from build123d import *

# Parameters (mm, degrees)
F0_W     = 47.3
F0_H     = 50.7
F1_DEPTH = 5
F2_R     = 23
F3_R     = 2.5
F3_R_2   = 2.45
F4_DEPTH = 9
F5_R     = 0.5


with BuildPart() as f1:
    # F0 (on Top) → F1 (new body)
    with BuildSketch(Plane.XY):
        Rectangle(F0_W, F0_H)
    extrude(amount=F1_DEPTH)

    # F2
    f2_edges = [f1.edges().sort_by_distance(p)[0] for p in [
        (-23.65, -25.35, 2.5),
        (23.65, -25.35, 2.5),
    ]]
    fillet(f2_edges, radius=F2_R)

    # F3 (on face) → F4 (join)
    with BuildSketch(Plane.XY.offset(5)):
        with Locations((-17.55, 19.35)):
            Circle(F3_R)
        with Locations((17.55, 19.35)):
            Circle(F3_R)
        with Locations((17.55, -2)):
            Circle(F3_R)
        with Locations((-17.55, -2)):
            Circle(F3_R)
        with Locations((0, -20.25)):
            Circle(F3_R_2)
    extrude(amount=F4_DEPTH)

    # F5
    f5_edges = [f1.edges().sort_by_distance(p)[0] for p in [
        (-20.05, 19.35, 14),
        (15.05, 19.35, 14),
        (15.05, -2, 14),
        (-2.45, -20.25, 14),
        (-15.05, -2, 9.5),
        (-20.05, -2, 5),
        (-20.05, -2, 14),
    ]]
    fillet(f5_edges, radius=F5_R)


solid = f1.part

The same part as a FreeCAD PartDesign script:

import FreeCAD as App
import Part
import Sketcher

V = App.Vector
Q = App.Units.Quantity


def edges_at(feature, points):
    """Names of the edges that pass closest to the given points."""
    edges = feature.Shape.Edges
    near = lambda p: min(range(len(edges)), key=lambda i: edges[i].distToShape(Part.Vertex(*p))[0])
    return sorted({f"Edge{near(p) + 1}" for p in points})


def add_polygon(sketch, points):
    """Adds a closed chain of lines whose ends are joined by coincident constraints."""
    first, n = sketch.GeometryCount, len(points)
    for a, b in zip(points, points[1:] + points[:1]):
        sketch.addGeometry(Part.LineSegment(App.Vector(*a, 0), App.Vector(*b, 0)), False)
    for i in range(n):
        sketch.addConstraint(Sketcher.Constraint("Coincident", first + i, 2, first + (i + 1) % n, 1))

doc = App.newDocument("Part")
body = doc.addObject("PartDesign::Body", "Body")

# Sketch on XY plane
sketch1 = body.newObject("Sketcher::SketchObject", "Sketch")
sketch1.AttachmentSupport = (doc.getObject("XY_Plane"), [""])
sketch1.MapMode = "FlatFace"
add_polygon(sketch1, [(-24, 25), (-24, -25), (24, -25), (24, 25)])  # lines 0-3
sketch1.addConstraint([
    Sketcher.Constraint("Vertical", 0),
    Sketcher.Constraint("Horizontal", 1),
    Sketcher.Constraint("Vertical", 2),
    Sketcher.Constraint("Horizontal", 3),
    Sketcher.Constraint("Symmetric", 0, 2, 2, 2, -1, 1),
    Sketcher.Constraint("DistanceX", 1, 1, 1, 2, Q("47.3 mm")),
    Sketcher.Constraint("DistanceY", 0, 2, 0, 1, Q("50.7 mm")),
])
pad1 = body.newObject("PartDesign::Pad", "Pad")
pad1.Profile = sketch1
pad1.Length = 5
doc.recompute()

fillet = body.newObject("PartDesign::Fillet", "Fillet")
fillet.Base = (pad1, edges_at(pad1, [(-23.65, -25.35, 2.5), (23.65, -25.35, 2.5)]))
fillet.Radius = 23

# Sketch on XY plane
sketch2 = body.newObject("Sketcher::SketchObject", "Sketch001")
sketch2.AttachmentSupport = (doc.getObject("XY_Plane"), [""])
sketch2.MapMode = "FlatFace"
sketch2.AttachmentOffset = App.Placement(V(0, 0, 5), App.Rotation())
sketch2.addGeometry([
    Part.Circle(V(-17.6, 19.4, 0), V(0, 0, 1), 2.5),  # 0
    Part.Circle(V(17.6, 19.4, 0), V(0, 0, 1), 2.5),  # 1
    Part.Circle(V(17.6, -2, 0), V(0, 0, 1), 2.5),  # 2
    Part.Circle(V(-17.6, -2, 0), V(0, 0, 1), 2.5),  # 3
    Part.Circle(V(0, -20.2, 0), V(0, 0, 1), 2.5),  # 4
], False)
sketch2.addConstraint([
    Sketcher.Constraint("Equal", 0, 1),
    Sketcher.Constraint("Equal", 1, 2),
    Sketcher.Constraint("Equal", 2, 3),
    Sketcher.Constraint("Symmetric", 0, 3, 1, 3, -2),
    Sketcher.Constraint("Symmetric", 2, 3, 3, 3, -2),
    Sketcher.Constraint("PointOnObject", 4, 3, -2),
    Sketcher.Constraint("Vertical", 1, 3, 2, 3),
    Sketcher.Constraint("Diameter", 0, Q("5 mm")),
    Sketcher.Constraint("Diameter", 4, Q("4.9 mm")),
    Sketcher.Constraint("DistanceY", 2, 3, -1, 1, Q("2 mm")),
    Sketcher.Constraint("DistanceX", 0, 3, 1, 3, Q("35.1 mm")),
    Sketcher.Constraint("DistanceY", 4, 3, 0, 3, Q("39.6 mm")),
    Sketcher.Constraint("DistanceY", -1, 1, 0, 3, Q("19.35 mm")),
])
pad2 = body.newObject("PartDesign::Pad", "Pad001")
pad2.Profile = sketch2
pad2.Length = 9
doc.recompute()

fillet2 = body.newObject("PartDesign::Fillet", "Fillet001")
fillet2.Base = (pad2, edges_at(pad2, [
    (-20.05, 19.35, 14),
    (15.05, 19.35, 14),
    (15.05, -2, 14),
    (-2.45, -20.25, 14),
    (-15.05, -2, 9.5),
    (-20.05, -2, 5),
    (-20.05, -2, 14),
]))
fillet2.Radius = 0.5

doc.recompute()
